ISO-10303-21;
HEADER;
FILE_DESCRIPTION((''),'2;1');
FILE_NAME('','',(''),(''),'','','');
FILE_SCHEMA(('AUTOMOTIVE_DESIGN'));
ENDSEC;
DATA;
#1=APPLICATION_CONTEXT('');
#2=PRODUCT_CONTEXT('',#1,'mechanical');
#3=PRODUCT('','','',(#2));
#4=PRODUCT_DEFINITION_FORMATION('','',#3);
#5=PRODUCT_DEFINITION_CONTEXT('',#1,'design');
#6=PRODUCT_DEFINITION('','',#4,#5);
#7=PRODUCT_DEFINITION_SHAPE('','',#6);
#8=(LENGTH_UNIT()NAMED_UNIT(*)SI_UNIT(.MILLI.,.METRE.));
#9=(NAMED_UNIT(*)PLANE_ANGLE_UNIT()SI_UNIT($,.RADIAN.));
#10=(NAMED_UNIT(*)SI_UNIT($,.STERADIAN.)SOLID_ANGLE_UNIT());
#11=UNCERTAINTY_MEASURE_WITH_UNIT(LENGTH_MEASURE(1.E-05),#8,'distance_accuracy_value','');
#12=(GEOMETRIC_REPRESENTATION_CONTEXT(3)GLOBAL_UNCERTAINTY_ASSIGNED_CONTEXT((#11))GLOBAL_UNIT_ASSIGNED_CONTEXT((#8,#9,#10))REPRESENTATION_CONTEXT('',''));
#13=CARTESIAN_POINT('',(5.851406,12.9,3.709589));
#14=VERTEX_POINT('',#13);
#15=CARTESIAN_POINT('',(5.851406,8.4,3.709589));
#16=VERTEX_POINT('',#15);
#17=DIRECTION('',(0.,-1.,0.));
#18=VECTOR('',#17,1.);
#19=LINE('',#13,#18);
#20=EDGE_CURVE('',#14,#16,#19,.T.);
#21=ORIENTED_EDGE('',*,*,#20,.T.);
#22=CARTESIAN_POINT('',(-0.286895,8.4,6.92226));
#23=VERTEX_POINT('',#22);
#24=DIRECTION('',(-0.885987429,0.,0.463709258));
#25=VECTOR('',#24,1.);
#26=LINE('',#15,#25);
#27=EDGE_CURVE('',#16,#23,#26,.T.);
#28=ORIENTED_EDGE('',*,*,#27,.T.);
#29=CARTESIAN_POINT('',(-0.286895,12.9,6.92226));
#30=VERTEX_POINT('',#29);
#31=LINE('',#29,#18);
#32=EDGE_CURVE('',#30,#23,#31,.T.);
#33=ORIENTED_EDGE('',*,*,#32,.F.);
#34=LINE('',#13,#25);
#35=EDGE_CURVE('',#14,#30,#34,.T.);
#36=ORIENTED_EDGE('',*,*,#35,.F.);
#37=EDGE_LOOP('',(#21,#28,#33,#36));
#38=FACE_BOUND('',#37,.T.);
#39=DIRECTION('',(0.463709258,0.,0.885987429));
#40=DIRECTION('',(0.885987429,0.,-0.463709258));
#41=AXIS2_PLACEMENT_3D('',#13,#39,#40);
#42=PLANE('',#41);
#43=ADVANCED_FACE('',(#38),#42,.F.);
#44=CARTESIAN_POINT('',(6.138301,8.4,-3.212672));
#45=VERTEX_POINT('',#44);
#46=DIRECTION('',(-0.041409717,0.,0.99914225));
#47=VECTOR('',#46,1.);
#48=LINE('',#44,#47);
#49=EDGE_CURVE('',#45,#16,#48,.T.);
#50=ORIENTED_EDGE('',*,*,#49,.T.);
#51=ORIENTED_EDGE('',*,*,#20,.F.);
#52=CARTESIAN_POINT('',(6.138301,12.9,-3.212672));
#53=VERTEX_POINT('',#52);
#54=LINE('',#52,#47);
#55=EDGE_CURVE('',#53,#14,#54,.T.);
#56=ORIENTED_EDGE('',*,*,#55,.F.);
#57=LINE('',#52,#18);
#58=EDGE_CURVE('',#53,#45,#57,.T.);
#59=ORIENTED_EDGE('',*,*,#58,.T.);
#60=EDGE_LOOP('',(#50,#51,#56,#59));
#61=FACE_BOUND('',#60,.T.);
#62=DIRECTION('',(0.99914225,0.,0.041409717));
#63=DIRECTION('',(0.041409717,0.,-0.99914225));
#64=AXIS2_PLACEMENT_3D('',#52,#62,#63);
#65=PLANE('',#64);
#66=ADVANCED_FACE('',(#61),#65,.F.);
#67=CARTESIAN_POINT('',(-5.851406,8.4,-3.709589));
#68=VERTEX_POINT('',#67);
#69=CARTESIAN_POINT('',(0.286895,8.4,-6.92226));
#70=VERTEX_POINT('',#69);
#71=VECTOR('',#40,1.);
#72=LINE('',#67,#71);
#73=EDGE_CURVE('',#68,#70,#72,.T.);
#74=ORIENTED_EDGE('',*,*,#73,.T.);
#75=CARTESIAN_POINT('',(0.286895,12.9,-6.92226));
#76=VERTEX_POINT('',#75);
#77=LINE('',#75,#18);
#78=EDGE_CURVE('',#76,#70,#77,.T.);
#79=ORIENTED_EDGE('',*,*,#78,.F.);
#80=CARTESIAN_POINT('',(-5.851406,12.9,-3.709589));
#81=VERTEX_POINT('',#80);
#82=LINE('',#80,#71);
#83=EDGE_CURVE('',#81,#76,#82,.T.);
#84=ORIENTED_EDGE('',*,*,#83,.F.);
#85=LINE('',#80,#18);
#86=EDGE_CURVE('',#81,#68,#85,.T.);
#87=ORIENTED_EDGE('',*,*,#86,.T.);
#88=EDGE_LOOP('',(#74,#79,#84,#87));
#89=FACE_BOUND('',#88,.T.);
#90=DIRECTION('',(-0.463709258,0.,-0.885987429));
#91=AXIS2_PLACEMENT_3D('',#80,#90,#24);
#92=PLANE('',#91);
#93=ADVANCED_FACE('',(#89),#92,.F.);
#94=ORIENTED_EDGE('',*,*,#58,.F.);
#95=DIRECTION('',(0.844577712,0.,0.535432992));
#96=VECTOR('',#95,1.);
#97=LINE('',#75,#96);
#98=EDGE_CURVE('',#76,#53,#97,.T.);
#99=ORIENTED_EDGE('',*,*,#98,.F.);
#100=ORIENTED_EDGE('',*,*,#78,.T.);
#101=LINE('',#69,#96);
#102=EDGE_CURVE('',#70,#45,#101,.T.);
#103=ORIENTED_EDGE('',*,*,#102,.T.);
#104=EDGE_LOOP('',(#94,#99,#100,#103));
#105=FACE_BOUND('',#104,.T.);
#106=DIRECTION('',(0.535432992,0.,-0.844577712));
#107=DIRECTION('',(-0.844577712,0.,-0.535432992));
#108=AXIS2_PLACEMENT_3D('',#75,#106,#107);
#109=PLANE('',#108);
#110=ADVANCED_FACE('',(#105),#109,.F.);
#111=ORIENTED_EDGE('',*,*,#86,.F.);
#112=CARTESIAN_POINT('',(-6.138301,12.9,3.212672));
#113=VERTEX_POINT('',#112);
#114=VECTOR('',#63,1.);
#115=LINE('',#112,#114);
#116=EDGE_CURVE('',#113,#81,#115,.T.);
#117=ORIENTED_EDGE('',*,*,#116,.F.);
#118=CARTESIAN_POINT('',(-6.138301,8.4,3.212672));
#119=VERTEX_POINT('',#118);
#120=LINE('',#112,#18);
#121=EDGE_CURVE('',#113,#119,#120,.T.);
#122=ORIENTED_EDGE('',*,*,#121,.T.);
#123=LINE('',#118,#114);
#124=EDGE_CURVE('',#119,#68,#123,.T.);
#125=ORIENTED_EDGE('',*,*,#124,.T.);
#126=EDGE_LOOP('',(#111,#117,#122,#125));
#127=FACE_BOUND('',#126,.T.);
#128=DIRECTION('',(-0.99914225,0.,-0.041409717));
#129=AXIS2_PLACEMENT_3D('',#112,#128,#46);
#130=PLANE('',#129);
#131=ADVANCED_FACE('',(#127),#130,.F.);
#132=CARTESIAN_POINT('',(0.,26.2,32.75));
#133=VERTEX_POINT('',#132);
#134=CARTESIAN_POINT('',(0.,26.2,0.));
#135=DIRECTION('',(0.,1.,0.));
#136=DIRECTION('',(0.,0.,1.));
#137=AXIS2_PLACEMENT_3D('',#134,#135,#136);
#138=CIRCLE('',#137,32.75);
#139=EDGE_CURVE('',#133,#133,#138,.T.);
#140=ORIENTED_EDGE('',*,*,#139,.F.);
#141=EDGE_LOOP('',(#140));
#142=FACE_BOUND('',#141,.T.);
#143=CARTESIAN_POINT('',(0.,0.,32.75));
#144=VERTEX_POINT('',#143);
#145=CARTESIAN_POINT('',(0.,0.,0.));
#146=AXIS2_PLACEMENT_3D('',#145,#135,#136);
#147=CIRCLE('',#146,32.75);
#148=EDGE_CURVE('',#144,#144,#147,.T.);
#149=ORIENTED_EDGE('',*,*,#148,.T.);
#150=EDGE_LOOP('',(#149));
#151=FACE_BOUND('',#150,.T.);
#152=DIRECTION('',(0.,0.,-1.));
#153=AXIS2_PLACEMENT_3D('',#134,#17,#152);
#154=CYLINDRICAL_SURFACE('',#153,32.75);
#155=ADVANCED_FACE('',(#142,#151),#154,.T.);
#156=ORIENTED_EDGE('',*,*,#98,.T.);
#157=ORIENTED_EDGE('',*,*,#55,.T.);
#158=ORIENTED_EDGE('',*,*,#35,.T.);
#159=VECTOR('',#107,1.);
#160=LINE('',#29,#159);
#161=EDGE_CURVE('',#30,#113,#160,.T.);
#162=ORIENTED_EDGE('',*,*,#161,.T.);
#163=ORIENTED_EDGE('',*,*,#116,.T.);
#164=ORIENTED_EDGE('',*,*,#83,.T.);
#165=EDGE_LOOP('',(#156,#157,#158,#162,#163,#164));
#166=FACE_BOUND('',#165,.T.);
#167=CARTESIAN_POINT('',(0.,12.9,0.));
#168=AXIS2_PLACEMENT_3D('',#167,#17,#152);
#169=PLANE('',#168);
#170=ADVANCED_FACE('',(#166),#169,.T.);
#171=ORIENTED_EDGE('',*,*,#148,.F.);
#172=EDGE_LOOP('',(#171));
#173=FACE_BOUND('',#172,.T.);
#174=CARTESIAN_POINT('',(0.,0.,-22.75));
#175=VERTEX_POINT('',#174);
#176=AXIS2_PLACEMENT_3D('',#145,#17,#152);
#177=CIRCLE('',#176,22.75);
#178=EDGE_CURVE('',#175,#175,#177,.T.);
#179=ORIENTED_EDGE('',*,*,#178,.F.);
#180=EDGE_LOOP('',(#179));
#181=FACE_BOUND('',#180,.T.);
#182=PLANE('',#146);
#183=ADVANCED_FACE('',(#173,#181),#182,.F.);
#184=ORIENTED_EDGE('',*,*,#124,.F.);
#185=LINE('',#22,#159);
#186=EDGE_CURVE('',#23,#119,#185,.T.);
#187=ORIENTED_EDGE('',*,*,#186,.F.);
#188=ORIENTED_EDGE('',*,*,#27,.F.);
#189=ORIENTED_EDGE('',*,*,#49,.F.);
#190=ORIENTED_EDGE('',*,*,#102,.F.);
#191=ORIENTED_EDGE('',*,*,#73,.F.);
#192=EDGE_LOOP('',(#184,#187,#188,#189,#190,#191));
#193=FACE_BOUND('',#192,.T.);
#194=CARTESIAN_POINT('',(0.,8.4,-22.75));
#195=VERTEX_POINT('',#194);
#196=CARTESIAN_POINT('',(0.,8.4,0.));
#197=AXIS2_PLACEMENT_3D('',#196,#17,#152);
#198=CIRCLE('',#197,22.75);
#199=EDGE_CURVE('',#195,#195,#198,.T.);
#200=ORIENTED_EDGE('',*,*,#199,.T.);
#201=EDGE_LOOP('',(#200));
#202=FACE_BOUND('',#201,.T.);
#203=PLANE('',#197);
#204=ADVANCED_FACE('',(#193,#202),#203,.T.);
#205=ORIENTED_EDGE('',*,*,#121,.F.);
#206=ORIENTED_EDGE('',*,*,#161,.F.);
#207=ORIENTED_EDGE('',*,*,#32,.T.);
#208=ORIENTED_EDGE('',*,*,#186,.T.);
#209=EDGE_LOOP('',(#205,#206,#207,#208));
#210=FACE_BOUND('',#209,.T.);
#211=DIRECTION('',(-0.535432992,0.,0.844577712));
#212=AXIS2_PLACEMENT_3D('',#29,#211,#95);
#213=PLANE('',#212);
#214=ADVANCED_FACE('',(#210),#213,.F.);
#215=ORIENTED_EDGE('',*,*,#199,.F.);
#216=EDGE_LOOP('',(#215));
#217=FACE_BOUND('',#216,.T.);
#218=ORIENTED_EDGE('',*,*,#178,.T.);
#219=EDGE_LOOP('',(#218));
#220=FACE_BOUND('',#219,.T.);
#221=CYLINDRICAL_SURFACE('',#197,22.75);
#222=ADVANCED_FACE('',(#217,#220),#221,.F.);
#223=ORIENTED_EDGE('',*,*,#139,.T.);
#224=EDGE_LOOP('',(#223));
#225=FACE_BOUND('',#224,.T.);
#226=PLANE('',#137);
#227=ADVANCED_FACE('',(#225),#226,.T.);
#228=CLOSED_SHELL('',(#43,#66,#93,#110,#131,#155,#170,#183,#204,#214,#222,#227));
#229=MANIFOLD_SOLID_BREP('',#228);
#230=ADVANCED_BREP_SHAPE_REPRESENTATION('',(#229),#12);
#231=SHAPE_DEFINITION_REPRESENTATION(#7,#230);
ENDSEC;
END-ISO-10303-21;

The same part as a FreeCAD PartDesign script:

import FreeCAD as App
import Part
import Sketcher

doc = App.newDocument("Part")
params = doc.addObject("Spreadsheet::Sheet", "Params")
for row, (alias, value) in enumerate([
    ("sketch1_diameter", "65.5 mm"),
    ("pad1_length", "26.2 mm"),
    ("sketch2_diameter", "45.5 mm"),
    ("pocket1_length", "8.4 mm"),
    ("pocket2_length", "4.5 mm"),
], start=1):
    params.set(f"A{row}", alias)
    params.set(f"B{row}", "=" + value)
    params.setAlias(f"B{row}", alias)

body = doc.addObject("PartDesign::Body", "Body")

# Sketch on XZ plane
sketch1 = doc.addObject("Sketcher::SketchObject", "Sketch")
body.addObject(sketch1)
sketch1.AttachmentSupport = (doc.XZ_Plane, [""])
sketch1.MapMode = "FlatFace"
sketch1.addGeometry(Part.Circle(App.Vector(0, 0, 0), App.Vector(0, 0, 1), 32.75), False)
sketch1.addConstraint([
    Sketcher.Constraint("Coincident", 0, 3, -1, 1),
    Sketcher.Constraint("Diameter", 0, 65.5),
])
sketch1.setExpression("Constraints[1]", "Params.sketch1_diameter")
pad1 = doc.addObject("PartDesign::Pad", "Pad")
body.addObject(pad1)
pad1.Profile = sketch1
pad1.setExpression("Length", "Params.pad1_length")
pad1.Reversed = True

# Sketch on XZ plane
sketch2 = doc.addObject("Sketcher::SketchObject", "Sketch001")
body.addObject(sketch2)
sketch2.AttachmentSupport = (doc.XZ_Plane, [""])
sketch2.MapMode = "FlatFace"
sketch2.addGeometry(Part.Circle(App.Vector(0, 0, 0), App.Vector(0, 0, 1), 22.75), False)
sketch2.addConstraint([
    Sketcher.Constraint("Coincident", 0, 3, -1, 1),
    Sketcher.Constraint("Diameter", 0, 45.5),
])
sketch2.setExpression("Constraints[1]", "Params.sketch2_diameter")
pocket1 = doc.addObject("PartDesign::Pocket", "Pocket")
body.addObject(pocket1)
pocket1.Profile = sketch2
pocket1.setExpression("Length", "Params.pocket1_length")

# Sketch on XZ plane
sketch3 = doc.addObject("Sketcher::SketchObject", "Sketch002")
body.addObject(sketch3)
sketch3.AttachmentSupport = (doc.XZ_Plane, [""])
sketch3.MapMode = "FlatFace"
sketch3.AttachmentOffset = App.Placement(App.Vector(0, 0, -8.4), App.Rotation())
sketch3.addGeometry([
    Part.LineSegment(App.Vector(-5.851406, -3.709589, 0), App.Vector(0.286895, -6.92226, 0)),  # 0
    Part.LineSegment(App.Vector(0.286895, -6.92226, 0), App.Vector(6.138301, -3.212672, 0)),  # 1
    Part.LineSegment(App.Vector(6.138301, -3.212672, 0), App.Vector(5.851406, 3.709589, 0)),  # 2
    Part.LineSegment(App.Vector(5.851406, 3.709589, 0), App.Vector(-0.286895, 6.92226, 0)),  # 3
    Part.LineSegment(App.Vector(-0.286895, 6.92226, 0), App.Vector(-6.138301, 3.212672, 0)),  # 4
    Part.LineSegment(App.Vector(-6.138301, 3.212672, 0), App.Vector(-5.851406, -3.709589, 0)),  # 5
], False)
sketch3.addConstraint([
    Sketcher.Constraint("Coincident", 0, 2, 1, 1),
    Sketcher.Constraint("Coincident", 1, 2, 2, 1),
    Sketcher.Constraint("Coincident", 2, 2, 3, 1),
    Sketcher.Constraint("Coincident", 3, 2, 4, 1),
    Sketcher.Constraint("Coincident", 4, 2, 5, 1),
    Sketcher.Constraint("Coincident", 5, 2, 0, 1),
    Sketcher.Constraint("Symmetric", 0, 2, 3, 2, -1, 1),
    Sketcher.Constraint("Symmetric", 1, 2, 4, 2, -1, 1),
    Sketcher.Constraint("Symmetric", 2, 2, 5, 2, -1, 1),
    Sketcher.Constraint("Equal", 0, 1),
    Sketcher.Constraint("Equal", 1, 2),
    Sketcher.Constraint("DistanceX", -1, 1, 1, 2, 6.138301),
    Sketcher.Constraint("DistanceX", 3, 2, 2, 2, 6.138301),
    Sketcher.Constraint("DistanceY", 0, 2, -1, 1, 6.92226),
    Sketcher.Constraint("DistanceY", 1, 2, -1, 1, 3.212672),
])
pocket2 = doc.addObject("PartDesign::Pocket", "Pocket001")
body.addObject(pocket2)
pocket2.Profile = sketch3
pocket2.setExpression("Length", "Params.pocket2_length")

doc.recompute()
